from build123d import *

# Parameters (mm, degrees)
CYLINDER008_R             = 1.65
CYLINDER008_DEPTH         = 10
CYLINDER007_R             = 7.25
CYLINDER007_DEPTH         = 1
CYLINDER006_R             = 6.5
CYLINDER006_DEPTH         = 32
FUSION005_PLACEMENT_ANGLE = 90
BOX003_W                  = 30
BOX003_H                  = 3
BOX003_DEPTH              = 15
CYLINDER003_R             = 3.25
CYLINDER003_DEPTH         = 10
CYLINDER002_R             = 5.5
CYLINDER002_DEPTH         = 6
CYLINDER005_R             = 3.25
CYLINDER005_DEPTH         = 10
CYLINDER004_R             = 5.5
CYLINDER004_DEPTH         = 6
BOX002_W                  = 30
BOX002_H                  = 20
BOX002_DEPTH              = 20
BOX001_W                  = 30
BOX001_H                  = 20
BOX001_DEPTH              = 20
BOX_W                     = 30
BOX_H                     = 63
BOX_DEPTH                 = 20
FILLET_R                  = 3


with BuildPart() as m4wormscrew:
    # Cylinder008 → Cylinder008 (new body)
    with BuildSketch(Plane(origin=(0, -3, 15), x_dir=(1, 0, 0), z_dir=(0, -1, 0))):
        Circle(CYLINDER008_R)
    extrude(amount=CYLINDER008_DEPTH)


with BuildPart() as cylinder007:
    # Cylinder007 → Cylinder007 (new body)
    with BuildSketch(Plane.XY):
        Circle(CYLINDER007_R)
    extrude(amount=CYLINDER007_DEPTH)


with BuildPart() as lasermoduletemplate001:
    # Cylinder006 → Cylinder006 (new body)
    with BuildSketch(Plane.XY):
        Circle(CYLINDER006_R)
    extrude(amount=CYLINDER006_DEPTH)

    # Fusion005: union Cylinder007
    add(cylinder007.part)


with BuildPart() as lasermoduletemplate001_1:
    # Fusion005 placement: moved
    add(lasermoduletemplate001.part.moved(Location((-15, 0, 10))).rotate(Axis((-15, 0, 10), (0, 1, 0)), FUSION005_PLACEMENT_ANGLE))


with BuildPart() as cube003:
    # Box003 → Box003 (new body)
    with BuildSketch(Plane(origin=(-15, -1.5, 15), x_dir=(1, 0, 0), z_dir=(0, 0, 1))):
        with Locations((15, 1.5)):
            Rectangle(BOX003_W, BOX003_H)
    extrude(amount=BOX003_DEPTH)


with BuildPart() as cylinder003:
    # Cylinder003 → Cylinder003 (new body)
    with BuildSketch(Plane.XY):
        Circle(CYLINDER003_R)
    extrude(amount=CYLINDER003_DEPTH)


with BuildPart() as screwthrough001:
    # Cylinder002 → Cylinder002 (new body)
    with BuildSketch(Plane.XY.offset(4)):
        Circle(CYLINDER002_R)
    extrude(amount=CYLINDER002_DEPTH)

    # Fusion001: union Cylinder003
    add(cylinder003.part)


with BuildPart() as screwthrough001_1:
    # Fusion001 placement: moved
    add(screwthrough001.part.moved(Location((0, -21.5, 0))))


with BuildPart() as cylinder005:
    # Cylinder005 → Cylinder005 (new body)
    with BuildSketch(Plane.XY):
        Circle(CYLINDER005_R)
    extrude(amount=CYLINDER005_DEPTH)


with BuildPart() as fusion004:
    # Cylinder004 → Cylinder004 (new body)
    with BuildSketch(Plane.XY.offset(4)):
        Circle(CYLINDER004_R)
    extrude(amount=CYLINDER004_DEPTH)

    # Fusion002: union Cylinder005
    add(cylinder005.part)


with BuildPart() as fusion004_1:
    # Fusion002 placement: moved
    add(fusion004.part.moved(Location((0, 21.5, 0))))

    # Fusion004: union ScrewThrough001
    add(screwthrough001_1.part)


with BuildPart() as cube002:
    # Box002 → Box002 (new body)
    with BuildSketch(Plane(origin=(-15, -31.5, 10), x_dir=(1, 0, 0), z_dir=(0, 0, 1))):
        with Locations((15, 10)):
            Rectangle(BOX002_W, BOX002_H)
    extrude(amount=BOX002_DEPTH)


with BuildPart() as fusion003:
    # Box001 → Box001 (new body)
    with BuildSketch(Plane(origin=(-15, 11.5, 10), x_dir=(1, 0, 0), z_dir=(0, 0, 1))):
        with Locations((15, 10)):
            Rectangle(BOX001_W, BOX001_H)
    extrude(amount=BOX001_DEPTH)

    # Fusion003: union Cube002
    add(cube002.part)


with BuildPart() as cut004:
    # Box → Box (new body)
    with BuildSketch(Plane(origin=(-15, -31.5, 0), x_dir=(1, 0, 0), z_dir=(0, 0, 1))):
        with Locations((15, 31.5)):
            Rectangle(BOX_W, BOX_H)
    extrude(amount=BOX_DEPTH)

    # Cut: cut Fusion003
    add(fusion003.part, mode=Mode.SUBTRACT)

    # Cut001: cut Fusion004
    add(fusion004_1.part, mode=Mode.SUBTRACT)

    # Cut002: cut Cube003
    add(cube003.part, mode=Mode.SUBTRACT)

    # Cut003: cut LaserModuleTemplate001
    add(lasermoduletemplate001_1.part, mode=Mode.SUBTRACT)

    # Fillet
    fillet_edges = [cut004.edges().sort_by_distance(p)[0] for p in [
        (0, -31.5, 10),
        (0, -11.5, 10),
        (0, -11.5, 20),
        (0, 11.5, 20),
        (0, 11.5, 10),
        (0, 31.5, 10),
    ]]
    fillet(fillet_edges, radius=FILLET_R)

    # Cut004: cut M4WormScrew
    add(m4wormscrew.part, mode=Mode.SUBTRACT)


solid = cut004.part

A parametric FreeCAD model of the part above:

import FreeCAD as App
import Part
import Sketcher
from FreeCAD import Vector


def edges_at(feature, points):
    """Names of the edges that pass closest to the given points."""
    edges = feature.Shape.Edges
    near = lambda p: min(range(len(edges)), key=lambda i: edges[i].distToShape(Part.Vertex(*p))[0])
    return sorted({f"Edge{near(p) + 1}" for p in points})

doc = App.newDocument("Part")
body = doc.addObject("PartDesign::Body", "Body")

# Sketch on XZ plane
sketch1 = doc.addObject("Sketcher::SketchObject", "Sketch")
body.addObject(sketch1)
sketch1.AttachmentSupport = (doc.XZ_Plane, [""])
sketch1.MapMode = "FlatFace"
sketch1.AttachmentOffset = App.Placement(Vector(0, 0, 3), App.Rotation())
sketch1.addGeometry(Part.Circle(Vector(0, 15, 0), Vector(0, 0, 1), 1.6), False)
sketch1.addConstraint(Sketcher.Constraint("PointOnObject", 0, 3, -2))
sketch1.addConstraint(Sketcher.Constraint("Diameter", 0, 3.3))
sketch1.addConstraint(Sketcher.Constraint("DistanceY", -1, 1, 0, 3, 15.0))
pad1 = doc.addObject("PartDesign::Pad", "Pad")
body.addObject(pad1)
pad1.Profile = sketch1
pad1.Length = 10
body2 = doc.addObject("PartDesign::Body", "Body001")

# Sketch on XY plane
sketch2 = doc.addObject("Sketcher::SketchObject", "Sketch001")
body2.addObject(sketch2)
sketch2.AttachmentSupport = (doc.getObject("XY_Plane001"), [""])
sketch2.MapMode = "FlatFace"
sketch2.addGeometry(Part.Circle(Vector(0, 0, 0), Vector(0, 0, 1), 7), False)
sketch2.addConstraint(Sketcher.Constraint("Coincident", 0, 3, -1, 1))
sketch2.addConstraint(Sketcher.Constraint("Diameter", 0, 14.5))
pad2 = doc.addObject("PartDesign::Pad", "Pad001")
body2.addObject(pad2)
pad2.Profile = sketch2
pad2.Length = 1
body3 = doc.addObject("PartDesign::Body", "Body002")

# Sketch on XY plane
sketch3 = doc.addObject("Sketcher::SketchObject", "Sketch002")
body3.addObject(sketch3)
sketch3.AttachmentSupport = (doc.getObject("XY_Plane002"), [""])
sketch3.MapMode = "FlatFace"
sketch3.addGeometry(Part.Circle(Vector(0, 0, 0), Vector(0, 0, 1), 6), False)
sketch3.addConstraint(Sketcher.Constraint("Coincident", 0, 3, -1, 1))
sketch3.addConstraint(Sketcher.Constraint("Diameter", 0, 13.0))
pad3 = doc.addObject("PartDesign::Pad", "Pad002")
body3.addObject(pad3)
pad3.Profile = sketch3
pad3.Length = 32
doc.recompute()

boolean = doc.addObject("PartDesign::Boolean", "Boolean")
body3.addObject(boolean)
boolean.Type = "Fuse"
boolean.addObjects([body2])
body4 = doc.addObject("PartDesign::Body", "Body003")
doc.recompute()

body3.Placement = App.Placement(Vector(-15, 0, 10), App.Rotation(Vector(0, 1, 0), 90))
boolean2 = doc.addObject("PartDesign::Boolean", "Boolean001")
body4.addObject(boolean2)
boolean2.Type = "Fuse"
boolean2.addObjects([body3])
body5 = doc.addObject("PartDesign::Body", "Body004")

# Sketch on XY plane
sketch4 = doc.addObject("Sketcher::SketchObject", "Sketch003")
body5.addObject(sketch4)
sketch4.AttachmentSupport = (doc.getObject("XY_Plane004"), [""])
sketch4.MapMode = "FlatFace"
sketch4.AttachmentOffset = App.Placement(Vector(0, 0, 15), App.Rotation())
sketch4.addGeometry(Part.LineSegment(Vector(-15, 1.5, 0), Vector(-15, -1.5, 0)), False)
sketch4.addGeometry(Part.LineSegment(Vector(-15, -1.5, 0), Vector(15, -1.5, 0)), False)
sketch4.addGeometry(Part.LineSegment(Vector(15, -1.5, 0), Vector(15, 1.5, 0)), False)
sketch4.addGeometry(Part.LineSegment(Vector(15, 1.5, 0), Vector(-15, 1.5, 0)), False)
sketch4.addConstraint(Sketcher.Constraint("Coincident", 0, 2, 1, 1))
sketch4.addConstraint(Sketcher.Constraint("Coincident", 1, 2, 2, 1))
sketch4.addConstraint(Sketcher.Constraint("Coincident", 2, 2, 3, 1))
sketch4.addConstraint(Sketcher.Constraint("Coincident", 3, 2, 0, 1))
sketch4.addConstraint(Sketcher.Constraint("Vertical", 0))
sketch4.addConstraint(Sketcher.Constraint("Horizontal", 1))
sketch4.addConstraint(Sketcher.Constraint("Vertical", 2))
sketch4.addConstraint(Sketcher.Constraint("Horizontal", 3))
sketch4.addConstraint(Sketcher.Constraint("Symmetric", 0, 2, 2, 2, -1, 1))
sketch4.addConstraint(Sketcher.Constraint("DistanceX", 1, 1, 1, 2, 30.0))
sketch4.addConstraint(Sketcher.Constraint("DistanceY", 0, 2, 0, 1, 3.0))
pad4 = doc.addObject("PartDesign::Pad", "Pad003")
body5.addObject(pad4)
pad4.Profile = sketch4
pad4.Length = 15
body6 = doc.addObject("PartDesign::Body", "Body005")

# Sketch on XY plane
sketch5 = doc.addObject("Sketcher::SketchObject", "Sketch004")
body6.addObject(sketch5)
sketch5.AttachmentSupport = (doc.getObject("XY_Plane005"), [""])
sketch5.MapMode = "FlatFace"
sketch5.addGeometry(Part.Circle(Vector(0, 0, 0), Vector(0, 0, 1), 3.2), False)
sketch5.addConstraint(Sketcher.Constraint("Coincident", 0, 3, -1, 1))
sketch5.addConstraint(Sketcher.Constraint("Diameter", 0, 6.5))
pad5 = doc.addObject("PartDesign::Pad", "Pad004")
body6.addObject(pad5)
pad5.Profile = sketch5
pad5.Length = 10
body7 = doc.addObject("PartDesign::Body", "Body006")

# Sketch on XY plane
sketch6 = doc.addObject("Sketcher::SketchObject", "Sketch005")
body7.addObject(sketch6)
sketch6.AttachmentSupport = (doc.getObject("XY_Plane006"), [""])
sketch6.MapMode = "FlatFace"
sketch6.AttachmentOffset = App.Placement(Vector(0, 0, 4), App.Rotation())
sketch6.addGeometry(Part.Circle(Vector(0, 0, 0), Vector(0, 0, 1), 6), False)
sketch6.addConstraint(Sketcher.Constraint("Coincident", 0, 3, -1, 1))
sketch6.addConstraint(Sketcher.Constraint("Diameter", 0, 11.0))
pad6 = doc.addObject("PartDesign::Pad", "Pad005")
body7.addObject(pad6)
pad6.Profile = sketch6
pad6.Length = 6
doc.recompute()

boolean3 = doc.addObject("PartDesign::Boolean", "Boolean002")
body7.addObject(boolean3)
boolean3.Type = "Fuse"
boolean3.addObjects([body6])
body8 = doc.addObject("PartDesign::Body", "Body007")
doc.recompute()

body7.Placement = App.Placement(Vector(0, -21.5, 0), App.Rotation(Vector(0, 0, 1), 0))
boolean4 = doc.addObject("PartDesign::Boolean", "Boolean003")
body8.addObject(boolean4)
boolean4.Type = "Fuse"
boolean4.addObjects([body7])
body9 = doc.addObject("PartDesign::Body", "Body008")

# Sketch on XY plane
sketch7 = doc.addObject("Sketcher::SketchObject", "Sketch006")
body9.addObject(sketch7)
sketch7.AttachmentSupport = (doc.getObject("XY_Plane008"), [""])
sketch7.MapMode = "FlatFace"
sketch7.addGeometry(Part.Circle(Vector(0, 0, 0), Vector(0, 0, 1), 3.2), False)
sketch7.addConstraint(Sketcher.Constraint("Coincident", 0, 3, -1, 1))
sketch7.addConstraint(Sketcher.Constraint("Diameter", 0, 6.5))
pad7 = doc.addObject("PartDesign::Pad", "Pad006")
body9.addObject(pad7)
pad7.Profile = sketch7
pad7.Length = 10
body10 = doc.addObject("PartDesign::Body", "Body009")

# Sketch on XY plane
sketch8 = doc.addObject("Sketcher::SketchObject", "Sketch007")
body10.addObject(sketch8)
sketch8.AttachmentSupport = (doc.getObject("XY_Plane009"), [""])
sketch8.MapMode = "FlatFace"
sketch8.AttachmentOffset = App.Placement(Vector(0, 0, 4), App.Rotation())
sketch8.addGeometry(Part.Circle(Vector(0, 0, 0), Vector(0, 0, 1), 6), False)
sketch8.addConstraint(Sketcher.Constraint("Coincident", 0, 3, -1, 1))
sketch8.addConstraint(Sketcher.Constraint("Diameter", 0, 11.0))
pad8 = doc.addObject("PartDesign::Pad", "Pad007")
body10.addObject(pad8)
pad8.Profile = sketch8
pad8.Length = 6
doc.recompute()

boolean5 = doc.addObject("PartDesign::Boolean", "Boolean004")
body10.addObject(boolean5)
boolean5.Type = "Fuse"
boolean5.addObjects([body9])
body11 = doc.addObject("PartDesign::Body", "Body010")
body11.AllowCompound = True
doc.recompute()

body10.Placement = App.Placement(Vector(0, 21.5, 0), App.Rotation(Vector(0, 0, 1), 0))
boolean6 = doc.addObject("PartDesign::Boolean", "Boolean005")
body11.addObject(boolean6)
boolean6.Type = "Fuse"
boolean6.addObjects([body10])
doc.recompute()

boolean7 = doc.addObject("PartDesign::Boolean", "Boolean006")
body11.addObject(boolean7)
boolean7.Type = "Fuse"
boolean7.addObjects([body8])
body12 = doc.addObject("PartDesign::Body", "Body011")

# Sketch on XY plane
sketch9 = doc.addObject("Sketcher::SketchObject", "Sketch008")
body12.addObject(sketch9)
sketch9.AttachmentSupport = (doc.getObject("XY_Plane011"), [""])
sketch9.MapMode = "FlatFace"
sketch9.AttachmentOffset = App.Placement(Vector(0, 0, 10), App.Rotation())
sketch9.addGeometry(Part.LineSegment(Vector(-15, -12, 0), Vector(-15, -32, 0)), False)
sketch9.addGeometry(Part.LineSegment(Vector(-15, -32, 0), Vector(15, -32, 0)), False)
sketch9.addGeometry(Part.LineSegment(Vector(15, -32, 0), Vector(15, -12, 0)), False)
sketch9.addGeometry(Part.LineSegment(Vector(15, -12, 0), Vector(-15, -12, 0)), False)
sketch9.addConstraint(Sketcher.Constraint("Coincident", 0, 2, 1, 1))
sketch9.addConstraint(Sketcher.Constraint("Coincident", 1, 2, 2, 1))
sketch9.addConstraint(Sketcher.Constraint("Coincident", 2, 2, 3, 1))
sketch9.addConstraint(Sketcher.Constraint("Coincident", 3, 2, 0, 1))
sketch9.addConstraint(Sketcher.Constraint("Vertical", 0))
sketch9.addConstraint(Sketcher.Constraint("Horizontal", 1))
sketch9.addConstraint(Sketcher.Constraint("Vertical", 2))
sketch9.addConstraint(Sketcher.Constraint("Horizontal", 3))
sketch9.addConstraint(Sketcher.Constraint("DistanceX", 1, 1, 1, 2, 30.0))
sketch9.addConstraint(Sketcher.Constraint("DistanceY", 0, 2, 0, 1, 20.0))
sketch9.addConstraint(Sketcher.Constraint("DistanceX", 0, 2, -1, 1, 15.0))
sketch9.addConstraint(Sketcher.Constraint("DistanceY", 0, 2, -1, 1, 31.5))
pad9 = doc.addObject("PartDesign::Pad", "Pad008")
body12.addObject(pad9)
pad9.Profile = sketch9
pad9.Length = 20
body13 = doc.addObject("PartDesign::Body", "Body012")
body13.AllowCompound = True

# Sketch on XY plane
sketch10 = doc.addObject("Sketcher::SketchObject", "Sketch009")
body13.addObject(sketch10)
sketch10.AttachmentSupport = (doc.getObject("XY_Plane012"), [""])
sketch10.MapMode = "FlatFace"
sketch10.AttachmentOffset = App.Placement(Vector(0, 0, 10), App.Rotation())
sketch10.addGeometry(Part.LineSegment(Vector(-15, 32, 0), Vector(-15, 12, 0)), False)
sketch10.addGeometry(Part.LineSegment(Vector(-15, 12, 0), Vector(15, 12, 0)), False)
sketch10.addGeometry(Part.LineSegment(Vector(15, 12, 0), Vector(15, 32, 0)), False)
sketch10.addGeometry(Part.LineSegment(Vector(15, 32, 0), Vector(-15, 32, 0)), False)
sketch10.addConstraint(Sketcher.Constraint("Coincident", 0, 2, 1, 1))
sketch10.addConstraint(Sketcher.Constraint("Coincident", 1, 2, 2, 1))
sketch10.addConstraint(Sketcher.Constraint("Coincident", 2, 2, 3, 1))
sketch10.addConstraint(Sketcher.Constraint("Coincident", 3, 2, 0, 1))
sketch10.addConstraint(Sketcher.Constraint("Vertical", 0))
sketch10.addConstraint(Sketcher.Constraint("Horizontal", 1))
sketch10.addConstraint(Sketcher.Constraint("Vertical", 2))
sketch10.addConstraint(Sketcher.Constraint("Horizontal", 3))
sketch10.addConstraint(Sketcher.Constraint("DistanceX", 1, 1, 1, 2, 30.0))
sketch10.addConstraint(Sketcher.Constraint("DistanceY", 0, 2, 0, 1, 20.0))
sketch10.addConstraint(Sketcher.Constraint("DistanceX", 0, 2, -1, 1, 15.0))
sketch10.addConstraint(Sketcher.Constraint("DistanceY", -1, 1, 0, 2, 11.5))
pad10 = doc.addObject("PartDesign::Pad", "Pad009")
body13.addObject(pad10)
pad10.Profile = sketch10
pad10.Length = 20
doc.recompute()

boolean8 = doc.addObject("PartDesign::Boolean", "Boolean007")
body13.addObject(boolean8)
boolean8.Type = "Fuse"
boolean8.addObjects([body12])
body14 = doc.addObject("PartDesign::Body", "Body013")

# Sketch on XY plane
sketch11 = doc.addObject("Sketcher::SketchObject", "Sketch010")
body14.addObject(sketch11)
sketch11.AttachmentSupport = (doc.getObject("XY_Plane013"), [""])
sketch11.MapMode = "FlatFace"
sketch11.addGeometry(Part.LineSegment(Vector(-15, 32, 0), Vector(-15, -32, 0)), False)
sketch11.addGeometry(Part.LineSegment(Vector(-15, -32, 0), Vector(15, -32, 0)), False)
sketch11.addGeometry(Part.LineSegment(Vector(15, -32, 0), Vector(15, 32, 0)), False)
sketch11.addGeometry(Part.LineSegment(Vector(15, 32, 0), Vector(-15, 32, 0)), False)
sketch11.addConstraint(Sketcher.Constraint("Coincident", 0, 2, 1, 1))
sketch11.addConstraint(Sketcher.Constraint("Coincident", 1, 2, 2, 1))
sketch11.addConstraint(Sketcher.Constraint("Coincident", 2, 2, 3, 1))
sketch11.addConstraint(Sketcher.Constraint("Coincident", 3, 2, 0, 1))
sketch11.addConstraint(Sketcher.Constraint("Vertical", 0))
sketch11.addConstraint(Sketcher.Constraint("Horizontal", 1))
sketch11.addConstraint(Sketcher.Constraint("Vertical", 2))
sketch11.addConstraint(Sketcher.Constraint("Horizontal", 3))
sketch11.addConstraint(Sketcher.Constraint("Symmetric", 0, 2, 2, 2, -1, 1))
sketch11.addConstraint(Sketcher.Constraint("DistanceX", 1, 1, 1, 2, 30.0))
sketch11.addConstraint(Sketcher.Constraint("DistanceY", 0, 2, 0, 1, 63.0))
pad11 = doc.addObject("PartDesign::Pad", "Pad010")
body14.addObject(pad11)
pad11.Profile = sketch11
pad11.Length = 20
doc.recompute()

boolean9 = doc.addObject("PartDesign::Boolean", "Boolean008")
body14.addObject(boolean9)
boolean9.Type = "Cut"
boolean9.addObjects([body13])
doc.recompute()

boolean10 = doc.addObject("PartDesign::Boolean", "Boolean009")
body14.addObject(boolean10)
boolean10.Type = "Cut"
boolean10.addObjects([body11])
doc.recompute()

boolean11 = doc.addObject("PartDesign::Boolean", "Boolean010")
body14.addObject(boolean11)
boolean11.Type = "Cut"
boolean11.addObjects([body5])
doc.recompute()

boolean12 = doc.addObject("PartDesign::Boolean", "Boolean011")
body14.addObject(boolean12)
boolean12.Type = "Cut"
boolean12.addObjects([body4])
doc.recompute()

fillet = doc.addObject("PartDesign::Fillet", "Fillet")
body14.addObject(fillet)
fillet.Base = (boolean12, edges_at(boolean12, [
    (0, -31.5, 10),
    (0, -11.5, 10),
    (0, -11.5, 20),
    (0, 11.5, 20),
    (0, 11.5, 10),
    (0, 31.5, 10),
]))
fillet.Radius = 3
doc.recompute()

boolean13 = doc.addObject("PartDesign::Boolean", "Boolean012")
body14.addObject(boolean13)
boolean13.Type = "Cut"
boolean13.addObjects([body])

doc.recompute()
